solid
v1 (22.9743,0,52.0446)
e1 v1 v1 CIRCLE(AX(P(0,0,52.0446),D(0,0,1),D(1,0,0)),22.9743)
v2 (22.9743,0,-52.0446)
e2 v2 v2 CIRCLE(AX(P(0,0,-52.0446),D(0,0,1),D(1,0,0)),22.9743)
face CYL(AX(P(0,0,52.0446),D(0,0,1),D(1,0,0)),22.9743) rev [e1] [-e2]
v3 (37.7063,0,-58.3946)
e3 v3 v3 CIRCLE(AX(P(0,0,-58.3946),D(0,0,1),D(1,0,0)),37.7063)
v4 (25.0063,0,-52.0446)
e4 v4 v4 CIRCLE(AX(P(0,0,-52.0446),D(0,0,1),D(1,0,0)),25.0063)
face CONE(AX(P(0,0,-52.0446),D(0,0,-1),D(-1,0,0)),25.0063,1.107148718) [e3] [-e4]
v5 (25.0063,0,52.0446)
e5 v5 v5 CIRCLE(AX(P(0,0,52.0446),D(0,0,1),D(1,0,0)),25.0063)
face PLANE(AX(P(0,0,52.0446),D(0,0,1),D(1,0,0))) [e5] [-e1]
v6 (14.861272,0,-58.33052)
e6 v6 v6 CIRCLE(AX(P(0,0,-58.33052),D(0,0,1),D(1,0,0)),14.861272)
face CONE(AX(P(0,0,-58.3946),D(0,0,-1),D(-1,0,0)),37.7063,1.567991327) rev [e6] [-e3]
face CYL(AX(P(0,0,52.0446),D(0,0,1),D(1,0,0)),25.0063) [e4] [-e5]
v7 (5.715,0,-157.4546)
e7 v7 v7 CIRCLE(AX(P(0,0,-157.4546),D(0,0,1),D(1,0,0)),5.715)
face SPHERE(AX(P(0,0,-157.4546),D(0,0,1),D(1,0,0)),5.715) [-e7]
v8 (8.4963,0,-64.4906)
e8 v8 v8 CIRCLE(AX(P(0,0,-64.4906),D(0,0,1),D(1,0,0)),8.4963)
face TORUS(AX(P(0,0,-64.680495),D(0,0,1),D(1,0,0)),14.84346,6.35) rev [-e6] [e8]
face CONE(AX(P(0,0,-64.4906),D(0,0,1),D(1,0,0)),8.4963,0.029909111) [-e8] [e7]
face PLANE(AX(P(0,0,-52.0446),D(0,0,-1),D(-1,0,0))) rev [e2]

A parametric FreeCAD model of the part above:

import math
import FreeCAD as App
import Part
import Sketcher

V = App.Vector
Q = App.Units.Quantity

doc = App.newDocument("Part")
body = doc.addObject("PartDesign::Body", "Body")

# Sketch on XZ plane
sketch1 = doc.addObject("Sketcher::SketchObject", "Sketch")
body.addObject(sketch1)
sketch1.AttachmentSupport = (doc.XZ_Plane, [""])
sketch1.MapMode = "FlatFace"
sketch1.addGeometry(Part.LineSegment(V(8.5, -64.5, 0), V(5.7, -157.5, 0)), False)
sketch1.addGeometry(Part.ArcOfCircle(Part.Circle(V(0, -157.5, 0), V(0, 0, 1), 5.7), math.radians(-90), math.radians(0)), False)
sketch1.addGeometry(Part.LineSegment(V(0, -163.2, 0), V(0, -52, 0)), False)
sketch1.addGeometry(Part.LineSegment(V(0, -52, 0), V(23, -52, 0)), False)
sketch1.addGeometry(Part.LineSegment(V(23, -52, 0), V(23, 52, 0)), False)
sketch1.addGeometry(Part.LineSegment(V(23, 52, 0), V(25, 52, 0)), False)
sketch1.addGeometry(Part.LineSegment(V(25, 52, 0), V(25, -52, 0)), False)
sketch1.addGeometry(Part.LineSegment(V(25, -52, 0), V(37.7, -58.4, 0)), False)
sketch1.addGeometry(Part.LineSegment(V(37.7, -58.4, 0), V(14.9, -58.3, 0)), False)
sketch1.addGeometry(Part.ArcOfCircle(Part.Circle(V(14.8, -64.7, 0), V(0, 0, 1), 6.4), math.radians(90), math.radians(178)), False)
sketch1.addConstraint(Sketcher.Constraint("Coincident", 0, 2, 1, 2))
sketch1.addConstraint(Sketcher.Constraint("Coincident", 1, 1, 2, 1))
sketch1.addConstraint(Sketcher.Constraint("Coincident", 2, 2, 3, 1))
sketch1.addConstraint(Sketcher.Constraint("Coincident", 3, 2, 4, 1))
sketch1.addConstraint(Sketcher.Constraint("Coincident", 4, 2, 5, 1))
sketch1.addConstraint(Sketcher.Constraint("Coincident", 5, 2, 6, 1))
sketch1.addConstraint(Sketcher.Constraint("Coincident", 6, 2, 7, 1))
sketch1.addConstraint(Sketcher.Constraint("Coincident", 7, 2, 8, 1))
sketch1.addConstraint(Sketcher.Constraint("Tangent", 8, 2, 9, 1))
sketch1.addConstraint(Sketcher.Constraint("Tangent", 9, 2, 0, 1))
sketch1.addConstraint(Sketcher.Constraint("Vertical", 2))
sketch1.addConstraint(Sketcher.Constraint("Horizontal", 3))
sketch1.addConstraint(Sketcher.Constraint("Vertical", 4))
sketch1.addConstraint(Sketcher.Constraint("Horizontal", 5))
sketch1.addConstraint(Sketcher.Constraint("Vertical", 6))
sketch1.addConstraint(Sketcher.Constraint("PointOnObject", 1, 3, -2))
sketch1.addConstraint(Sketcher.Constraint("PointOnObject", 1, 1, -2))
sketch1.addConstraint(Sketcher.Constraint("Horizontal", 1, 3, 0, 2))
sketch1.addConstraint(Sketcher.Constraint("Horizontal", 3, 2, 6, 2))
sketch1.addConstraint(Sketcher.Constraint("Radius", 9, Q("0.25 in")))
sketch1.addConstraint(Sketcher.Constraint("Radius", 1, Q("0.225 in")))
sketch1.addConstraint(Sketcher.Constraint("DistanceX", 5, 1, 5, 2, Q("0.08 in")))
sketch1.addConstraint(Sketcher.Constraint("DistanceX", 6, 2, 7, 2, Q("0.5 in")))
sketch1.addConstraint(Sketcher.Constraint("DistanceY", 0, 2, 7, 2, Q("3.9 in")))
sketch1.addConstraint(Sketcher.Constraint("DistanceY", 2, 1, 2, 2, Q("4.375 in")))
sketch1.addConstraint(Sketcher.Constraint("DistanceY", 4, 1, 4, 2, Q("4.098 in")))
sketch1.addConstraint(Sketcher.Constraint("DistanceY", 9, 2, 2, 2, Q("0.49 in")))
sketch1.addConstraint(Sketcher.Constraint("DistanceX", 9, 2, 3, 2, Q("0.57 in")))
sketch1.addConstraint(Sketcher.Constraint("DistanceX", 3, 1, 3, 2, Q("0.9045 in")))
sketch1.addConstraint(Sketcher.Constraint("DistanceY", 1, 3, -1, 1, Q("6.199 in")))
revolution = doc.addObject("PartDesign::Revolution", "Revolution")
body.addObject(revolution)
revolution.Profile = sketch1
revolution.ReferenceAxis = (sketch1, ["V_Axis"])
revolution.Angle = 360

doc.recompute()
